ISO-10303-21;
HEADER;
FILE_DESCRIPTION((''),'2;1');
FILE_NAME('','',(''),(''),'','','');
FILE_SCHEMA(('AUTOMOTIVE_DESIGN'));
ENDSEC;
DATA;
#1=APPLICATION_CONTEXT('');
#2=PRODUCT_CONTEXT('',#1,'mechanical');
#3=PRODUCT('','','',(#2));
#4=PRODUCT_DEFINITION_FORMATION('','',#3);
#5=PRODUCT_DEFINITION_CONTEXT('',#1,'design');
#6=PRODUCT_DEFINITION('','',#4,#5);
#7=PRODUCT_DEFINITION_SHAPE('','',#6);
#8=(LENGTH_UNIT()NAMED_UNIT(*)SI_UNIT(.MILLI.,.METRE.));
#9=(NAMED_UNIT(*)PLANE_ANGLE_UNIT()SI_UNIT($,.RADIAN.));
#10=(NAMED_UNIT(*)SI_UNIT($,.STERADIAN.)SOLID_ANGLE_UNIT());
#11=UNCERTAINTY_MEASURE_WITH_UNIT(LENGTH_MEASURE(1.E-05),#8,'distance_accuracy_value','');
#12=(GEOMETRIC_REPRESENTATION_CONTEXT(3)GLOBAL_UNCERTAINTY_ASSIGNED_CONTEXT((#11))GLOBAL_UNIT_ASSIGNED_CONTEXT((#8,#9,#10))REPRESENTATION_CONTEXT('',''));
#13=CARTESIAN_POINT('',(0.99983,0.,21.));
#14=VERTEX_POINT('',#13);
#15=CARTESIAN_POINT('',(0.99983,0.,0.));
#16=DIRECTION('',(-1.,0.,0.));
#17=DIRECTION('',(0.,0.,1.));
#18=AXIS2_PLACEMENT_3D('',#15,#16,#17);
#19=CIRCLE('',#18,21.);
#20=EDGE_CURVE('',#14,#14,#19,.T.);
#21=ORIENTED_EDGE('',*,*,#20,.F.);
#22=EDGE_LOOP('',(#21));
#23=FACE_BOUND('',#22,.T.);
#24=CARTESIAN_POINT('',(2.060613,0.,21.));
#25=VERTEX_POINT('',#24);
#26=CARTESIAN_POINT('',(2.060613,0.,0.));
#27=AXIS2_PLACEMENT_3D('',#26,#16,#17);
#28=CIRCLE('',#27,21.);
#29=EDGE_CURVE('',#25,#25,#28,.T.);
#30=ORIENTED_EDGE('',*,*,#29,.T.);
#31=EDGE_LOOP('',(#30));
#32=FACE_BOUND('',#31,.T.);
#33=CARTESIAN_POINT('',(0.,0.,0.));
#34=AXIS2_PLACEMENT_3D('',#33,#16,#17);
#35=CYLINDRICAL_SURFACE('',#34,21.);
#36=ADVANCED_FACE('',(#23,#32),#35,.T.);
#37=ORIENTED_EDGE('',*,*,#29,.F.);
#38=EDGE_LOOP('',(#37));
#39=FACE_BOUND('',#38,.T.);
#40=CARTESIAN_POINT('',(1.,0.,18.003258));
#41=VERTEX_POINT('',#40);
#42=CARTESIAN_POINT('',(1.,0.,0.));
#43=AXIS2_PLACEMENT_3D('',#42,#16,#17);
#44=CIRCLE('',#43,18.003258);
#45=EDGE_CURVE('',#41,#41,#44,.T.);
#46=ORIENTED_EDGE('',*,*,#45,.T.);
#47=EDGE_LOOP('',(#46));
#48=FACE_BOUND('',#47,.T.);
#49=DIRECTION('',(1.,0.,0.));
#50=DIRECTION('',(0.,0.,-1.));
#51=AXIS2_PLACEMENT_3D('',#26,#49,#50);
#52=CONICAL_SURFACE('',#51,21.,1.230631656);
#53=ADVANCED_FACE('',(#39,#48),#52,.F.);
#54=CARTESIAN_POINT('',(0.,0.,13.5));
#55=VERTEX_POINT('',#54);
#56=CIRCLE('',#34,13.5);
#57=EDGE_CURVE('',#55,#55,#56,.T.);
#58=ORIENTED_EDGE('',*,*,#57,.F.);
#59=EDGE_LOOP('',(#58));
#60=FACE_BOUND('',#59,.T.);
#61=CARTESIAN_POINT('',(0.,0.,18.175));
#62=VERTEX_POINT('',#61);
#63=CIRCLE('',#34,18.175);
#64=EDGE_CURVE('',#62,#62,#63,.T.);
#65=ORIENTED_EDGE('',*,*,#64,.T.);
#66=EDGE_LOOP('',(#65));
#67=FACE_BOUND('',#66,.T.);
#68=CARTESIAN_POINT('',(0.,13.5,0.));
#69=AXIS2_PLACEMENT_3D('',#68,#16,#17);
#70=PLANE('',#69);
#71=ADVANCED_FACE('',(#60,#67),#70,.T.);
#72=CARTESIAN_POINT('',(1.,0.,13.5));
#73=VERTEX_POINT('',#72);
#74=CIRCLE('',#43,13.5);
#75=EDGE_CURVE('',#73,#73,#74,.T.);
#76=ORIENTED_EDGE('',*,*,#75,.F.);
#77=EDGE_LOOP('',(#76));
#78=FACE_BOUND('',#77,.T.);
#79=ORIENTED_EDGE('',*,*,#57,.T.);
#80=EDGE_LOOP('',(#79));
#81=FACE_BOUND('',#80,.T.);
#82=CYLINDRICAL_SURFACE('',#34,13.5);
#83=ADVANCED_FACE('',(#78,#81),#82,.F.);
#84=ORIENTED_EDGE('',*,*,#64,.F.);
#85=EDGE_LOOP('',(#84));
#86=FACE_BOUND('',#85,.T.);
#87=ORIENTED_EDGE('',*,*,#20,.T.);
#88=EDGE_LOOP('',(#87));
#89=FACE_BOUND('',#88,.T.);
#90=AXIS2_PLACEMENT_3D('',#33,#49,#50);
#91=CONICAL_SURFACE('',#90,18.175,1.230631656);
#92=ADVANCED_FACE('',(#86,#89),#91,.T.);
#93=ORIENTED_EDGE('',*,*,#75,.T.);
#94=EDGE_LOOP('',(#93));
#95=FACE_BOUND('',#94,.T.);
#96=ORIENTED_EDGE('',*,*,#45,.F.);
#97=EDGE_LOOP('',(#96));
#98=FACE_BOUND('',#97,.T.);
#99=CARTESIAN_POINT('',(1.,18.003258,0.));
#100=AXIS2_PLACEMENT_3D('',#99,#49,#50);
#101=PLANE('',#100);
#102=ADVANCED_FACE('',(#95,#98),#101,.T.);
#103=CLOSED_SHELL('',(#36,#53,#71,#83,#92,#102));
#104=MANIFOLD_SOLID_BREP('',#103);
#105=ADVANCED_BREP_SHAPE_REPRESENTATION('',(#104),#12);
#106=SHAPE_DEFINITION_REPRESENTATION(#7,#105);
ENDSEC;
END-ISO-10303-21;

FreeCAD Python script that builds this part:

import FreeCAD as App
import Part
import Sketcher

V = App.Vector
Q = App.Units.Quantity

doc = App.newDocument("Part")
params = doc.addObject("Spreadsheet::Sheet", "Params")
for row, (alias, value) in enumerate([
    ("sketch1_width", "1 mm"),
    ("revolution_angle", "360 deg"),
], start=1):
    params.set(f"A{row}", alias)
    params.set(f"B{row}", "=" + value)
    params.setAlias(f"B{row}", alias)

body = doc.addObject("PartDesign::Body", "Body")

# Sketch on XY plane
sketch1 = body.newObject("Sketcher::SketchObject", "Sketch")
sketch1.AttachmentSupport = (doc.getObject("XY_Plane"), [""])
sketch1.MapMode = "FlatFace"
sketch1.addGeometry(Part.LineSegment(V(0, 18.175, 0), V(0, 13.5, 0)), False)
sketch1.addGeometry(Part.LineSegment(V(0, 13.5, 0), V(1, 13.5, 0)), False)
sketch1.addGeometry(Part.LineSegment(V(1, 13.5, 0), V(1, 18.003258, 0)), False)
sketch1.addGeometry(Part.LineSegment(V(1, 18.003258, 0), V(2.060613, 21, 0)), False)
sketch1.addGeometry(Part.LineSegment(V(2.060613, 21, 0), V(0.99983, 21, 0)), False)
sketch1.addGeometry(Part.LineSegment(V(0.99983, 21, 0), V(0, 18.175, 0)), False)
sketch1.addConstraint(Sketcher.Constraint("Coincident", 0, 2, 1, 1))
sketch1.addConstraint(Sketcher.Constraint("Coincident", 1, 2, 2, 1))
sketch1.addConstraint(Sketcher.Constraint("Coincident", 2, 2, 3, 1))
sketch1.addConstraint(Sketcher.Constraint("Coincident", 3, 2, 4, 1))
sketch1.addConstraint(Sketcher.Constraint("Coincident", 4, 2, 5, 1))
sketch1.addConstraint(Sketcher.Constraint("Coincident", 5, 2, 0, 1))
sketch1.addConstraint(Sketcher.Constraint("Vertical", 0))
sketch1.addConstraint(Sketcher.Constraint("Horizontal", 1))
sketch1.addConstraint(Sketcher.Constraint("Vertical", 2))
sketch1.addConstraint(Sketcher.Constraint("Horizontal", 4))
sketch1.addConstraint(Sketcher.Constraint("PointOnObject", 0, 2, -2))
sketch1.addConstraint(Sketcher.Constraint("Parallel", 3, 5))
sketch1.addConstraint(Sketcher.Constraint("DistanceX", 1, 1, 1, 2, Q("1 mm")))
sketch1.addConstraint(Sketcher.Constraint("DistanceY", -1, 1, 3, 2, Q("21 mm")))
sketch1.addConstraint(Sketcher.Constraint("DistanceY", -1, 1, 0, 2, Q("13.5 mm")))
sketch1.addConstraint(Sketcher.Constraint("Angle", 3, Q("70.51 deg")))
sketch1.addConstraint(Sketcher.Constraint("DistanceY", 0, 2, 0, 1, Q("4.675 mm")))
sketch1.addConstraint(Sketcher.Constraint("DistanceY", 2, 1, 2, 2, Q("4.503258 mm")))
sketch1.setExpression("Constraints[12]", "Params.sketch1_width")
revolution = body.newObject("PartDesign::Revolution", "Revolution")
revolution.Profile = sketch1
revolution.ReferenceAxis = (sketch1, ["H_Axis"])
revolution.setExpression("Angle", "Params.revolution_angle")

doc.recompute()
